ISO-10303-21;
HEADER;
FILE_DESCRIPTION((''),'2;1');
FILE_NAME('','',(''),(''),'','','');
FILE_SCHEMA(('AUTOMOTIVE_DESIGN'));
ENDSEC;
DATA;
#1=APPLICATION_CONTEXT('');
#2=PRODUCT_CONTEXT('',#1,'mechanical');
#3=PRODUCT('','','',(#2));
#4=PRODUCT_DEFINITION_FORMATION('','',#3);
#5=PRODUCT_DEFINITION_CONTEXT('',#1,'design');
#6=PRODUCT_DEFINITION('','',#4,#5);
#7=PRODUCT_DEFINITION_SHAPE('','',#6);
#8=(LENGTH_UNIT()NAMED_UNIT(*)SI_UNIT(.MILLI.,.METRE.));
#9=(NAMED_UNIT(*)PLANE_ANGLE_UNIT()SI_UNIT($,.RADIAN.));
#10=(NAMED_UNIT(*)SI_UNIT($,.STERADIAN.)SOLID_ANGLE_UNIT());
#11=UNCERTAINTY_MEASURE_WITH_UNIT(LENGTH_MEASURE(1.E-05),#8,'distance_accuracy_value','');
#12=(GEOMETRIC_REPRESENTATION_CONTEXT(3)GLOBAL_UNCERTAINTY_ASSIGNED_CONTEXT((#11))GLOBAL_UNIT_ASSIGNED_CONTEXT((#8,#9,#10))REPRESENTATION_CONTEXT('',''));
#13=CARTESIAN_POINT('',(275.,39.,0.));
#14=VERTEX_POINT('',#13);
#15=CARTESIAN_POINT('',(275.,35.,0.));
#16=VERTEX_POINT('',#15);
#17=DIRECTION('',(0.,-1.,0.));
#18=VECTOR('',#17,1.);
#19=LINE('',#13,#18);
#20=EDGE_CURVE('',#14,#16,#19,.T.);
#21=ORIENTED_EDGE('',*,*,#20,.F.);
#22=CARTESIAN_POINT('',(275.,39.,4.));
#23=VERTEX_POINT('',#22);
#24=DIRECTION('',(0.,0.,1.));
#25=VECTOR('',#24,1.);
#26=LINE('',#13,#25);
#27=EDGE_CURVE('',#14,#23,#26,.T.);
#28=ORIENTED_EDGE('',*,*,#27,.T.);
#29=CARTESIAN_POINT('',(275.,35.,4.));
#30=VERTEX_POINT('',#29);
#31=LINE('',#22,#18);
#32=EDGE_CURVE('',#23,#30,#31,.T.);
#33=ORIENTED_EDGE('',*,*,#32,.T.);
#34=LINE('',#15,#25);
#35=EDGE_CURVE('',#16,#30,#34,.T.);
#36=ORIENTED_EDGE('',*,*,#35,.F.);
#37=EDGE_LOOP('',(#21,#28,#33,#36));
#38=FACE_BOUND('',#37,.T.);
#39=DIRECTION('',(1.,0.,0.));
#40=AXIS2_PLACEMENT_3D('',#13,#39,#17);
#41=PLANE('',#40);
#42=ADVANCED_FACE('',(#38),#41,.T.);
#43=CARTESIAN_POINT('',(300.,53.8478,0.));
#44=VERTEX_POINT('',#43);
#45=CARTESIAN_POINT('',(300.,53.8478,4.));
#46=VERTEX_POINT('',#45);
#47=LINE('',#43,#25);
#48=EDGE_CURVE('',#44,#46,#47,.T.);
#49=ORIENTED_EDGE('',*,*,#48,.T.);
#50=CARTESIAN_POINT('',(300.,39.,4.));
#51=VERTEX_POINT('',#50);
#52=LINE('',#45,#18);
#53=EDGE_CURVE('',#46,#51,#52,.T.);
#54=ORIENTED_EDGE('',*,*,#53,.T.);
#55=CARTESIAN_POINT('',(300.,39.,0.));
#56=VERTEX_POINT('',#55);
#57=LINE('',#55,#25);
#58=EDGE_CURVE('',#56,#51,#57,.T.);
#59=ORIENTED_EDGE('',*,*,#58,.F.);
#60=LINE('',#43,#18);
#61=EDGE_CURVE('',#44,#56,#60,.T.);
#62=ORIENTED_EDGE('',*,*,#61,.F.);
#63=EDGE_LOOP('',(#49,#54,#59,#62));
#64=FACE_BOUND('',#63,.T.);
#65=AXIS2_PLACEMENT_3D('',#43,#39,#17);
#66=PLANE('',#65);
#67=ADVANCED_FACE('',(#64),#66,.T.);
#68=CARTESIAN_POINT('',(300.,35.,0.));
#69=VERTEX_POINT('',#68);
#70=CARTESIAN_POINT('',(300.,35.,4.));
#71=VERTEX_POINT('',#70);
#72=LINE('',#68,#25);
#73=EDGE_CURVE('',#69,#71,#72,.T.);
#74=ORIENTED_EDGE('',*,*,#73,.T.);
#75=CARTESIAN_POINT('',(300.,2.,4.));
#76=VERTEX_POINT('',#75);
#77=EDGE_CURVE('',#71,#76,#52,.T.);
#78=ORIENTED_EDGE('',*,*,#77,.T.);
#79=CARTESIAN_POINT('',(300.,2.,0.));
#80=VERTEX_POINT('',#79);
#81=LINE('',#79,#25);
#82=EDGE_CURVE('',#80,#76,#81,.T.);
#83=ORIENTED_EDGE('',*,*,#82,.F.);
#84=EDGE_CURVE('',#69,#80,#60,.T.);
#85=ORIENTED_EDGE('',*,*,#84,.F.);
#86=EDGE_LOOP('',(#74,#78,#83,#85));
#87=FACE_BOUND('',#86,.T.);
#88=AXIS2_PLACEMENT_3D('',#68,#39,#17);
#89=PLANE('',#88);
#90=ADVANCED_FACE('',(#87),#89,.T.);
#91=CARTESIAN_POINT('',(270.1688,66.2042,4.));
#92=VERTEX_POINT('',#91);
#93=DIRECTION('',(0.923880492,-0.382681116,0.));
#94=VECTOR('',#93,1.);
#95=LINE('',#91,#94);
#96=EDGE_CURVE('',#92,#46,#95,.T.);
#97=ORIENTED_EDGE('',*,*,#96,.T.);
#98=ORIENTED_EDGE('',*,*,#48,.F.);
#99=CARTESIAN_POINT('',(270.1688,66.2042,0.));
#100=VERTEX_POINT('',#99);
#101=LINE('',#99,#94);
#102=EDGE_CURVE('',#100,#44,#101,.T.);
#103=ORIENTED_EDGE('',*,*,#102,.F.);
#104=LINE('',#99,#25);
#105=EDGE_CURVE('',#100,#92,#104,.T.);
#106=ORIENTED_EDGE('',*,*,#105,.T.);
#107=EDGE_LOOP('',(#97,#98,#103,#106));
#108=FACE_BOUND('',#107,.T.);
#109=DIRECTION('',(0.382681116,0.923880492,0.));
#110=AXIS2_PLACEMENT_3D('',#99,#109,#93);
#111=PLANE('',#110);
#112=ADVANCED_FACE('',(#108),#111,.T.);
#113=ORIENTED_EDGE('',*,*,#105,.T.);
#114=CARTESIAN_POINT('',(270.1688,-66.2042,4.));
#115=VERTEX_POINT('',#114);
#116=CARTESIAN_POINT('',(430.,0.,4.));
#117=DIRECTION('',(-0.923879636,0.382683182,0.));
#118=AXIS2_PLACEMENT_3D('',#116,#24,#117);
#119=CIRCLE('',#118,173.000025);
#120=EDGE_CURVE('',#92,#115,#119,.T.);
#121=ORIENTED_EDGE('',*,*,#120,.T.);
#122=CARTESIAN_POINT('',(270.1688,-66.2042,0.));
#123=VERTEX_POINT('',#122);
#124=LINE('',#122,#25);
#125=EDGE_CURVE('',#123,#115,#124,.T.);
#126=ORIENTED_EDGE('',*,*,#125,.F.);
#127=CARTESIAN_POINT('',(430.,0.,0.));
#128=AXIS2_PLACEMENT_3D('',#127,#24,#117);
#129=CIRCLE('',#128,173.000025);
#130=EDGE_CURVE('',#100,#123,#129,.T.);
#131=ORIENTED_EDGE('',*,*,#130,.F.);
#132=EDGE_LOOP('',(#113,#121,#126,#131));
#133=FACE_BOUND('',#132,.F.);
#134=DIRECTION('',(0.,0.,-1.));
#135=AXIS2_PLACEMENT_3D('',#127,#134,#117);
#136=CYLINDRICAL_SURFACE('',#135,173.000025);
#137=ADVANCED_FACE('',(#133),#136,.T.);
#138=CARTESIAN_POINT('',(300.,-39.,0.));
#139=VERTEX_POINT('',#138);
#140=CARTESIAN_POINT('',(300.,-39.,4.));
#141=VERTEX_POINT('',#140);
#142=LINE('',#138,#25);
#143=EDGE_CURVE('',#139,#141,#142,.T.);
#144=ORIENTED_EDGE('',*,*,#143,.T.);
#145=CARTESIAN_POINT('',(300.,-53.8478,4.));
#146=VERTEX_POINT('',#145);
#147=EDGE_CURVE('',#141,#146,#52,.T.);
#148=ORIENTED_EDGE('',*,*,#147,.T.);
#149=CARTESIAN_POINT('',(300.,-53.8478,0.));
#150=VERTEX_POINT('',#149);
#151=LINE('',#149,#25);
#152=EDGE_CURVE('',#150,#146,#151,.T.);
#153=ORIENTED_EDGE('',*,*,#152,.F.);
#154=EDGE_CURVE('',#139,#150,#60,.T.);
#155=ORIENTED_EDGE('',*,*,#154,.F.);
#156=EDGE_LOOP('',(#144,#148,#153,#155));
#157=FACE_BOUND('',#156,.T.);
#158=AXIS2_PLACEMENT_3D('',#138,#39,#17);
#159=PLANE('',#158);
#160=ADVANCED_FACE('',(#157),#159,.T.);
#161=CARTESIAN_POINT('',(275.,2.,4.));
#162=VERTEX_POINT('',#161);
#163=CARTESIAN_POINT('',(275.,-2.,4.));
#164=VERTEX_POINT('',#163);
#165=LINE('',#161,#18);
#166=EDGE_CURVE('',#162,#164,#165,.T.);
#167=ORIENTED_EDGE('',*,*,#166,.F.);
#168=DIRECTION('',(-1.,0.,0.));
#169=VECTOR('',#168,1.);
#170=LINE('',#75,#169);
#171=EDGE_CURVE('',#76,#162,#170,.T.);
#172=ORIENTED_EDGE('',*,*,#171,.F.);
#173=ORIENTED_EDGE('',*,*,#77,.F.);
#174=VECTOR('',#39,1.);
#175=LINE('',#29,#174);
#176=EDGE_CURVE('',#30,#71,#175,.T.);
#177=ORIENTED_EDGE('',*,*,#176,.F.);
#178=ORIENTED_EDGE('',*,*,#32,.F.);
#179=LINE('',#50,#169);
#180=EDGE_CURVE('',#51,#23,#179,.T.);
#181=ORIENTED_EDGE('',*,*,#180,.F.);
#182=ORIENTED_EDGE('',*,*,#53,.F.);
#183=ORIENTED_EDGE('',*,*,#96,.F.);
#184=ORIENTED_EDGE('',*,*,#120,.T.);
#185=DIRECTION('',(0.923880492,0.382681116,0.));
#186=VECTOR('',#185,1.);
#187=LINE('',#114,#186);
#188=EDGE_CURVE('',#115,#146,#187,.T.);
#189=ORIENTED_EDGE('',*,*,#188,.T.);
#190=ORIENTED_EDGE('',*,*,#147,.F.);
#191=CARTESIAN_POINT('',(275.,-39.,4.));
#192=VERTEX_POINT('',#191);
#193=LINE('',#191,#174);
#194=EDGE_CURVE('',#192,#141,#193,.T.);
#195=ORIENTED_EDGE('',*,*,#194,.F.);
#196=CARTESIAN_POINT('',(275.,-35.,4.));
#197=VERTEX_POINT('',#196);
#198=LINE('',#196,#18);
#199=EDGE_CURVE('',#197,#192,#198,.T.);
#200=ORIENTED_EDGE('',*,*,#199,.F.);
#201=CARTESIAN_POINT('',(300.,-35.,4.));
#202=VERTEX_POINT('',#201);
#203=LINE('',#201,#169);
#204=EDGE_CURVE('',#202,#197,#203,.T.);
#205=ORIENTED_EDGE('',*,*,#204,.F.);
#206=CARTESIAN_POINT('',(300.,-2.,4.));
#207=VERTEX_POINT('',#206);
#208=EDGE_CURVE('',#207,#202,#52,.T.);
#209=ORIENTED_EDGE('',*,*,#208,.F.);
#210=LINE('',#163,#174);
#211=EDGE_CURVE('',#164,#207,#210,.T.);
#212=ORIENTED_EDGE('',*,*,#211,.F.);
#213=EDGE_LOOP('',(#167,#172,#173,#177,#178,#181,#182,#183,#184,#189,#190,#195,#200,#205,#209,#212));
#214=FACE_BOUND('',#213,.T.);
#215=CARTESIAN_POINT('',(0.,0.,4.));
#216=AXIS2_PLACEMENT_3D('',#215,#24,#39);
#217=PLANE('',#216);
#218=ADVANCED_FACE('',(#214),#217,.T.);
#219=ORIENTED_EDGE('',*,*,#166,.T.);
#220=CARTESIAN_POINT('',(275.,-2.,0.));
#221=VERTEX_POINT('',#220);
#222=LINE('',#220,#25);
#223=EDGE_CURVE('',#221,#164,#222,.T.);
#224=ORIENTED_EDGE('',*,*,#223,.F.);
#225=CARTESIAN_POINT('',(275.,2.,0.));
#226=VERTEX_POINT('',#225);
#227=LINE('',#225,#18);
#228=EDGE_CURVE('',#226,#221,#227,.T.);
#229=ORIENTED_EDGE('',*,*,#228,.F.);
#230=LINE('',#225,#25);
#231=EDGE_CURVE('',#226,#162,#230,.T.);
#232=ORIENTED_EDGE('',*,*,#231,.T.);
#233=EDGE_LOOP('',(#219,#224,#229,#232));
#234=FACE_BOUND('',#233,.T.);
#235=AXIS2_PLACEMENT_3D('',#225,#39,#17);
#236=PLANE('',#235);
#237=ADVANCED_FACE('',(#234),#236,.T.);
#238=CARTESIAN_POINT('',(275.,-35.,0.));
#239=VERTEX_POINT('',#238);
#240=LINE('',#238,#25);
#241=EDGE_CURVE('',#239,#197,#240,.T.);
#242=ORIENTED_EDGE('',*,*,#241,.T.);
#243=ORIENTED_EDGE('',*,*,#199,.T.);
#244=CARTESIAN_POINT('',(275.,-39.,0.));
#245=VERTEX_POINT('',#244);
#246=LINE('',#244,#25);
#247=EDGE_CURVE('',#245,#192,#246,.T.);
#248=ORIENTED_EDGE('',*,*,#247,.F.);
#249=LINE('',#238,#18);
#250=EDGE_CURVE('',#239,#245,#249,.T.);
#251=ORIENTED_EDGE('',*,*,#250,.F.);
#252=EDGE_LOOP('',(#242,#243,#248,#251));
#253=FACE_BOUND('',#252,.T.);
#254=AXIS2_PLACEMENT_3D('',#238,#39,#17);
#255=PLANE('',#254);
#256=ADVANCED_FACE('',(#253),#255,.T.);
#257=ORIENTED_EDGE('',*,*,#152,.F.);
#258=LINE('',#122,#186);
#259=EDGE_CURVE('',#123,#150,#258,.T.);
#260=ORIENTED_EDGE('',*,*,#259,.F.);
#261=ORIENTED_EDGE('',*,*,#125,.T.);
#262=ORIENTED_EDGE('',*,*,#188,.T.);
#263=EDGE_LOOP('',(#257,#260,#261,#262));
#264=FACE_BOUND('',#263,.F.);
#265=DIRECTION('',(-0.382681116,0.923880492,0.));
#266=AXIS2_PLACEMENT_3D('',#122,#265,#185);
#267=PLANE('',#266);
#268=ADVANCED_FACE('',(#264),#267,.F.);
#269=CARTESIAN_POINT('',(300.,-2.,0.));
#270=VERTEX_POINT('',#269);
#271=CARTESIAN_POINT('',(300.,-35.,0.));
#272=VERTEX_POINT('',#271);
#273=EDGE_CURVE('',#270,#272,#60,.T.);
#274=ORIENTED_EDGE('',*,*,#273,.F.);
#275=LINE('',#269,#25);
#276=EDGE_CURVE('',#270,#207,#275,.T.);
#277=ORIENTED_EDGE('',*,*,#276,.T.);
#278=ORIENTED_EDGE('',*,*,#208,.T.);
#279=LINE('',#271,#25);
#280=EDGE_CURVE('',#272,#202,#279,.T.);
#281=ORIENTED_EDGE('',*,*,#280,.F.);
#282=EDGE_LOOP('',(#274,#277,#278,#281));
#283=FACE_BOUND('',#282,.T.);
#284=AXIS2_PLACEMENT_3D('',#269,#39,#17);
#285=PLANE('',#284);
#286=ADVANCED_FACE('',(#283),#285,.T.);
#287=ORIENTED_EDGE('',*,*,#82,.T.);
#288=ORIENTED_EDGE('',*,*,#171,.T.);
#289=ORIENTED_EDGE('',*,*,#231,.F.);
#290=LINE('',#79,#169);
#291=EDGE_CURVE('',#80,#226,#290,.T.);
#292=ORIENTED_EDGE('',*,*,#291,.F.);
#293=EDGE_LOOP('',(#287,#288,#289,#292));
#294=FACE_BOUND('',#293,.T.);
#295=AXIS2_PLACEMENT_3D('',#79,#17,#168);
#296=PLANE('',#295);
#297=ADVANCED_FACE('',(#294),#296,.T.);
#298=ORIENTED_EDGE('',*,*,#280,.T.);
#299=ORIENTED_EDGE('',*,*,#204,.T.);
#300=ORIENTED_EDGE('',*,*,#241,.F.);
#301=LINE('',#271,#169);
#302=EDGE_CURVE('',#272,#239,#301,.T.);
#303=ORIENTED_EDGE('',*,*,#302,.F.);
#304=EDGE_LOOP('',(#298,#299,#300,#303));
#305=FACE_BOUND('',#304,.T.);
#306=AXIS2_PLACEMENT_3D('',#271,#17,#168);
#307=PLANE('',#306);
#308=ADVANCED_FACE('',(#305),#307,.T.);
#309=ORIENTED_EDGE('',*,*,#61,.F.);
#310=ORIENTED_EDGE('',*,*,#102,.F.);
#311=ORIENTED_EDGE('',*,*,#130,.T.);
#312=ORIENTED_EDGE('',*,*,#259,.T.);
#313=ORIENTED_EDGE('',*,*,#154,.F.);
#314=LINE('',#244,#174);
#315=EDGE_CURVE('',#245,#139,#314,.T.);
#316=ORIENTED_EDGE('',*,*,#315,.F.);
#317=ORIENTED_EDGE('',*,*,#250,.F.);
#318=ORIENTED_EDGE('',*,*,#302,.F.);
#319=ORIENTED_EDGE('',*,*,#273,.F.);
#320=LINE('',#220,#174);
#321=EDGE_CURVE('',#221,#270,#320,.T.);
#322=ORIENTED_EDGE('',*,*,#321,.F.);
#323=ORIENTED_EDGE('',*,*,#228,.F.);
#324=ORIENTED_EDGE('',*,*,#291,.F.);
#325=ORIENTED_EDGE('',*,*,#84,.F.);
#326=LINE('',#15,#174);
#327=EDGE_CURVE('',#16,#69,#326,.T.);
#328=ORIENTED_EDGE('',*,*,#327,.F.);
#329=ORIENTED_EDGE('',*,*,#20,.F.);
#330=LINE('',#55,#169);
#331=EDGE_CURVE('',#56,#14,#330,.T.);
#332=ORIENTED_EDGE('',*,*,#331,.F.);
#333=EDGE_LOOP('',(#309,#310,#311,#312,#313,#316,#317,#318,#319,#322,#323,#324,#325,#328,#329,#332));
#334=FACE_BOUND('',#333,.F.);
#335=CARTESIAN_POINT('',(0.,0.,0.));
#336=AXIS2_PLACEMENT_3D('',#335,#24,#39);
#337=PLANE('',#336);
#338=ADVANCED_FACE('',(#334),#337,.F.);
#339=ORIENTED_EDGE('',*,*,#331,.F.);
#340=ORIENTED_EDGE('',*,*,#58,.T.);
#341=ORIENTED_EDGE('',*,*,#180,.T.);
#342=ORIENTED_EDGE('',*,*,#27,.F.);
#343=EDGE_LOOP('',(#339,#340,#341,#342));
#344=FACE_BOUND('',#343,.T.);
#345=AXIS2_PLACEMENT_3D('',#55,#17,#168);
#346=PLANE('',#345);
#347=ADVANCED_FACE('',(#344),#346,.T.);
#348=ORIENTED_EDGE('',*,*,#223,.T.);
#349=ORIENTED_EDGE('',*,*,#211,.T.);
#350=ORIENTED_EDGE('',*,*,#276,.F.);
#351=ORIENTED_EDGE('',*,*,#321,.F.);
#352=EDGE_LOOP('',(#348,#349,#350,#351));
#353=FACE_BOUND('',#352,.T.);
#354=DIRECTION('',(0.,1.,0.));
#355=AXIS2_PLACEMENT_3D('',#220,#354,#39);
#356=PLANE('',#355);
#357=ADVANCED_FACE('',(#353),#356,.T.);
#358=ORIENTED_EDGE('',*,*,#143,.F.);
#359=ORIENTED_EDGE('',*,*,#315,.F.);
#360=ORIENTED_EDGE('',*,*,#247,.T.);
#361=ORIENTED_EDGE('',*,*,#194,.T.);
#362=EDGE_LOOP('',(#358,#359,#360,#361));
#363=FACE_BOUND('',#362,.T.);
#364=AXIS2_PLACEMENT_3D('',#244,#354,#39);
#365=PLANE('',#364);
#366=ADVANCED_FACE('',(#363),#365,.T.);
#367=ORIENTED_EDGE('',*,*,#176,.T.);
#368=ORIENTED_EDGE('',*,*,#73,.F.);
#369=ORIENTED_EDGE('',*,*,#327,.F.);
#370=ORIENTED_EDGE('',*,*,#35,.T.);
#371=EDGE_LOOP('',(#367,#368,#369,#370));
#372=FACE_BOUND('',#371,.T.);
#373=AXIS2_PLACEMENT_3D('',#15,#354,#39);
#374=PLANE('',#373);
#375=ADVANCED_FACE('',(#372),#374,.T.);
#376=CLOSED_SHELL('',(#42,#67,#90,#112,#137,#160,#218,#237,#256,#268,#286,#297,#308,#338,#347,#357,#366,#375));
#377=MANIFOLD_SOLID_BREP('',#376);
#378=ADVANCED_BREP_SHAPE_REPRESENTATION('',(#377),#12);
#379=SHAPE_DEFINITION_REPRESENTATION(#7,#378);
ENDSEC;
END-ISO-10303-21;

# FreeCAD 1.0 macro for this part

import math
import FreeCAD as App
import Part
import Sketcher
from FreeCAD import Vector
Q = App.Units.Quantity

doc = App.newDocument("Part")
body = doc.addObject("PartDesign::Body", "Body")

# Sketch on XY plane
sketch1 = body.newObject("Sketcher::SketchObject", "Sketch")
sketch1.AttachmentSupport = (doc.getObject("XY_Plane"), [""])
sketch1.MapMode = "FlatFace"
sketch1.addGeometry([
    Part.LineSegment(Vector(300, 39, 0), Vector(300, 53.8, 0)),  # 0
    Part.LineSegment(Vector(300, 53.8, 0), Vector(270.2, 66.2, 0)),  # 1
    Part.ArcOfCircle(Part.Circle(Vector(430, 0, 0), Vector(0, 0, 1), 173), math.radians(158), math.radians(202)),  # 2
    Part.LineSegment(Vector(270.2, -66.2, 0), Vector(300, -53.8, 0)),  # 3
    Part.LineSegment(Vector(300, -53.8, 0), Vector(300, -39, 0)),  # 4
    Part.LineSegment(Vector(300, -39, 0), Vector(275, -39, 0)),  # 5
    Part.LineSegment(Vector(275, -39, 0), Vector(275, -35, 0)),  # 6
    Part.LineSegment(Vector(275, -35, 0), Vector(300, -35, 0)),  # 7
    Part.LineSegment(Vector(300, -35, 0), Vector(300, -2, 0)),  # 8
    Part.LineSegment(Vector(300, -2, 0), Vector(275, -2, 0)),  # 9
    Part.LineSegment(Vector(275, -2, 0), Vector(275, 2, 0)),  # 10
    Part.LineSegment(Vector(275, 2, 0), Vector(300, 2, 0)),  # 11
    Part.LineSegment(Vector(300, 2, 0), Vector(300, 35, 0)),  # 12
    Part.LineSegment(Vector(300, 35, 0), Vector(275, 35, 0)),  # 13
    Part.LineSegment(Vector(275, 35, 0), Vector(275, 39, 0)),  # 14
    Part.LineSegment(Vector(275, 39, 0), Vector(300, 39, 0)),  # 15
], False)
sketch1.addConstraint([
    Sketcher.Constraint("Coincident", 0, 2, 1, 1),
    Sketcher.Constraint("Coincident", 1, 2, 2, 1),
    Sketcher.Constraint("Coincident", 2, 2, 3, 1),
    Sketcher.Constraint("Coincident", 3, 2, 4, 1),
    Sketcher.Constraint("Coincident", 4, 2, 5, 1),
    Sketcher.Constraint("Coincident", 5, 2, 6, 1),
    Sketcher.Constraint("Coincident", 6, 2, 7, 1),
    Sketcher.Constraint("Coincident", 7, 2, 8, 1),
    Sketcher.Constraint("Coincident", 8, 2, 9, 1),
    Sketcher.Constraint("Coincident", 9, 2, 10, 1),
    Sketcher.Constraint("Coincident", 10, 2, 11, 1),
    Sketcher.Constraint("Coincident", 11, 2, 12, 1),
    Sketcher.Constraint("Coincident", 12, 2, 13, 1),
    Sketcher.Constraint("Coincident", 13, 2, 14, 1),
    Sketcher.Constraint("Coincident", 14, 2, 15, 1),
    Sketcher.Constraint("Coincident", 15, 2, 0, 1),
    Sketcher.Constraint("Vertical", 0),
    Sketcher.Constraint("Vertical", 4),
    Sketcher.Constraint("Horizontal", 5),
    Sketcher.Constraint("Vertical", 6),
    Sketcher.Constraint("Horizontal", 7),
    Sketcher.Constraint("Vertical", 8),
    Sketcher.Constraint("Horizontal", 9),
    Sketcher.Constraint("Vertical", 10),
    Sketcher.Constraint("Horizontal", 11),
    Sketcher.Constraint("Vertical", 12),
    Sketcher.Constraint("Horizontal", 13),
    Sketcher.Constraint("Vertical", 14),
    Sketcher.Constraint("Horizontal", 15),
    Sketcher.Constraint("Symmetric", 1, 2, 2, 2, -1),
    Sketcher.Constraint("Symmetric", 0, 2, 3, 2, -1),
    Sketcher.Constraint("Symmetric", 8, 2, 11, 2, -1),
    Sketcher.Constraint("Symmetric", 6, 2, 13, 2, -1),
    Sketcher.Constraint("Vertical", 4, 2, 7, 2),
    Sketcher.Constraint("Vertical", 6, 2, 9, 2),
    Sketcher.Constraint("Equal", 0, 4),
    Sketcher.Constraint("Equal", 6, 10),
    Sketcher.Constraint("DistanceX", 5, 2, 5, 1, Q("25 mm")),
    Sketcher.Constraint("DistanceY", 6, 1, 6, 2, Q("4 mm")),
    Sketcher.Constraint("DistanceY", 6, 2, -1, 1, Q("35 mm")),
    Sketcher.Constraint("Radius", 2, Q("173 mm")),
    Sketcher.Constraint("DistanceX", -1, 1, 2, 3, Q("430 mm")),
    Sketcher.Constraint("DistanceX", -1, 1, 0, 2, Q("300 mm")),
    Sketcher.Constraint("Angle", 1, Q("157.5001 deg")),
    Sketcher.Constraint("Distance", 1, Q("32.289 mm")),
])
pad1 = body.newObject("PartDesign::Pad", "Pad")
pad1.Profile = sketch1
pad1.Length = 4

doc.recompute()
